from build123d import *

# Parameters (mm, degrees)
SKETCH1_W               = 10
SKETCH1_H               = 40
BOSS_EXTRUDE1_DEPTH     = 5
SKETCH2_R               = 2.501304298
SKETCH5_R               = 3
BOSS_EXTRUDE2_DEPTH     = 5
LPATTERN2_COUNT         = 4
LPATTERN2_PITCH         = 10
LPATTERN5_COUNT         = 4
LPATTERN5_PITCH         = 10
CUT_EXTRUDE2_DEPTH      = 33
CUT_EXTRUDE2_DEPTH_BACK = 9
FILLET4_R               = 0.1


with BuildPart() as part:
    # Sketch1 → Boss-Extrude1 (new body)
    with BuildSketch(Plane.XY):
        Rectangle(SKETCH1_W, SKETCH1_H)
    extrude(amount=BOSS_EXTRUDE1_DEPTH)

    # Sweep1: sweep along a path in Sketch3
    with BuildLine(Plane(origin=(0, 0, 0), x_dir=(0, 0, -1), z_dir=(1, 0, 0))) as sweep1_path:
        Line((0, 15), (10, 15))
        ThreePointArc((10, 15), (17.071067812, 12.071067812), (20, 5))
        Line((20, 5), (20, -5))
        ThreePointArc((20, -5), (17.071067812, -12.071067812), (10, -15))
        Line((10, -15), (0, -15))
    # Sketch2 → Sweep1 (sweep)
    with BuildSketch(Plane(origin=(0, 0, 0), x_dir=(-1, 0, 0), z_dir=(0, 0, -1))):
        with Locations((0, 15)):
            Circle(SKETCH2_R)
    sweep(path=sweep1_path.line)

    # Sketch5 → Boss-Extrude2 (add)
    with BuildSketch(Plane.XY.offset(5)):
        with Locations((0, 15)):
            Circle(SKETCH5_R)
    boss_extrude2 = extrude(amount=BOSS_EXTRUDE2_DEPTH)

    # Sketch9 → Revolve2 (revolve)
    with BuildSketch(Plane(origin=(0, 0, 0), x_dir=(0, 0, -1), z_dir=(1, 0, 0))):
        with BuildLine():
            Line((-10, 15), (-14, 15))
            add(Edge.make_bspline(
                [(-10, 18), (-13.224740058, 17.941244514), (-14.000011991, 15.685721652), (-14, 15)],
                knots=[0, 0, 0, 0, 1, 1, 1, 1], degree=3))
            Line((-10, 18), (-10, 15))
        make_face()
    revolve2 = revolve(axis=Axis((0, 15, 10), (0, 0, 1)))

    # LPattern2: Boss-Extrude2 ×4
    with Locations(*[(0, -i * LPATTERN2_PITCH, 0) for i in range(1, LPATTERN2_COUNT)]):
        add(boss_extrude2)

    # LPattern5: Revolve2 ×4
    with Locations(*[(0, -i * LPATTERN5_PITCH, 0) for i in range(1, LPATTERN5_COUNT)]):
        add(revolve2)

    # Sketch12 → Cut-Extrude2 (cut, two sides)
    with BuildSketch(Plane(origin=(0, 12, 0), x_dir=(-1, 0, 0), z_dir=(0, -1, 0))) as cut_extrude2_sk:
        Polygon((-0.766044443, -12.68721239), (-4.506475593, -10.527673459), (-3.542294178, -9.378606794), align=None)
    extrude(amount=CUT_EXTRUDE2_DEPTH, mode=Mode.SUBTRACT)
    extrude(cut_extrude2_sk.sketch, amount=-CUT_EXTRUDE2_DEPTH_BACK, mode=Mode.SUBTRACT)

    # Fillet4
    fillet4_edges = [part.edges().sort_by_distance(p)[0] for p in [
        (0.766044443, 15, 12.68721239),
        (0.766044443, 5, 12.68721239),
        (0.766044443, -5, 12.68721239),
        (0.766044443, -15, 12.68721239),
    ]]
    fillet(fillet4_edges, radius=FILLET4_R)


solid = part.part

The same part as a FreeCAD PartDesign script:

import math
import FreeCAD as App
import Part
import Sketcher
from FreeCAD import Vector
Q = App.Units.Quantity


def edges_at(feature, points):
    """Names of the edges that pass closest to the given points."""
    edges = feature.Shape.Edges
    near = lambda p: min(range(len(edges)), key=lambda i: edges[i].distToShape(Part.Vertex(*p))[0])
    return sorted({f"Edge{near(p) + 1}" for p in points})

doc = App.newDocument("Part")
body = doc.addObject("PartDesign::Body", "Body")

# Sketch on XY plane
sketch1 = body.newObject("Sketcher::SketchObject", "Sketch")
sketch1.AttachmentSupport = (doc.getObject("XY_Plane"), [""])
sketch1.MapMode = "FlatFace"
sketch1.addGeometry(Part.LineSegment(Vector(-5, 20, 0), Vector(-5, -20, 0)), False)
sketch1.addGeometry(Part.LineSegment(Vector(-5, -20, 0), Vector(5, -20, 0)), False)
sketch1.addGeometry(Part.LineSegment(Vector(5, -20, 0), Vector(5, 20, 0)), False)
sketch1.addGeometry(Part.LineSegment(Vector(5, 20, 0), Vector(-5, 20, 0)), False)
sketch1.addConstraint(Sketcher.Constraint("Coincident", 0, 2, 1, 1))
sketch1.addConstraint(Sketcher.Constraint("Coincident", 1, 2, 2, 1))
sketch1.addConstraint(Sketcher.Constraint("Coincident", 2, 2, 3, 1))
sketch1.addConstraint(Sketcher.Constraint("Coincident", 3, 2, 0, 1))
sketch1.addConstraint(Sketcher.Constraint("Vertical", 0))
sketch1.addConstraint(Sketcher.Constraint("Horizontal", 1))
sketch1.addConstraint(Sketcher.Constraint("Vertical", 2))
sketch1.addConstraint(Sketcher.Constraint("Horizontal", 3))
sketch1.addConstraint(Sketcher.Constraint("Symmetric", 0, 2, 2, 2, -1, 1))
sketch1.addConstraint(Sketcher.Constraint("DistanceX", 1, 1, 1, 2, 10.0))
sketch1.addConstraint(Sketcher.Constraint("DistanceY", 0, 2, 0, 1, 40.0))
pad1 = body.newObject("PartDesign::Pad", "Pad")
pad1.Profile = sketch1
pad1.Length = 5

# Sketch on XY plane
sketch2 = body.newObject("Sketcher::SketchObject", "Sketch001")
sketch2.AttachmentSupport = (doc.getObject("XY_Plane"), [""])
sketch2.MapMode = "FlatFace"
sketch2.addGeometry(Part.Circle(Vector(0, 15, 0), Vector(0, 0, 1), 2.5), False)
sketch2.addConstraint(Sketcher.Constraint("PointOnObject", 0, 3, -2))
sketch2.addConstraint(Sketcher.Constraint("DistanceY", -1, 1, 0, 3, 15.0))
sketch2.addConstraint(Sketcher.Constraint("Diameter", 0, 5.002609))

# Sketch on YZ plane
sketch3 = body.newObject("Sketcher::SketchObject", "Sketch002")
sketch3.AttachmentSupport = (doc.getObject("YZ_Plane"), [""])
sketch3.MapMode = "FlatFace"
sketch3.addGeometry(Part.LineSegment(Vector(15, 0, 0), Vector(15, -10, 0)), False)
sketch3.addGeometry(Part.ArcOfCircle(Part.Circle(Vector(5, -10, 0), Vector(0, 0, 1), 10), math.radians(-90), math.radians(0)), False)
sketch3.addGeometry(Part.LineSegment(Vector(5, -20, 0), Vector(-5, -20, 0)), False)
sketch3.addGeometry(Part.ArcOfCircle(Part.Circle(Vector(-5, -10, 0), Vector(0, 0, 1), 10), math.radians(180), math.radians(270)), False)
sketch3.addGeometry(Part.LineSegment(Vector(-15, -10, 0), Vector(-15, 0, 0)), False)
sketch3.addConstraint(Sketcher.Constraint("Tangent", 0, 2, 1, 2))
sketch3.addConstraint(Sketcher.Constraint("Tangent", 1, 1, 2, 1))
sketch3.addConstraint(Sketcher.Constraint("Tangent", 2, 2, 3, 2))
sketch3.addConstraint(Sketcher.Constraint("Tangent", 3, 1, 4, 1))
sketch3.addConstraint(Sketcher.Constraint("Vertical", 0))
sketch3.addConstraint(Sketcher.Constraint("Horizontal", 2))
sketch3.addConstraint(Sketcher.Constraint("Vertical", 4))
sketch3.addConstraint(Sketcher.Constraint("Equal", 1, 3))
sketch3.addConstraint(Sketcher.Constraint("Symmetric", 0, 1, 4, 2, -1, 1))
sketch3.addConstraint(Sketcher.Constraint("PointOnObject", 0, 1, -1))
sketch3.addConstraint(Sketcher.Constraint("Equal", 2, 0))
sketch3.addConstraint(Sketcher.Constraint("Radius", 1, 10.0))
sketch3.addConstraint(Sketcher.Constraint("DistanceX", 2, 2, 2, 1, 10.0))
doc.recompute()

additivepipe = body.newObject("PartDesign::AdditivePipe", "AdditivePipe")
additivepipe.Profile = sketch2
additivepipe.Spine = (sketch3, ["Edge1", "Edge2", "Edge3", "Edge4", "Edge5"])

# Sketch on XY plane
sketch4 = body.newObject("Sketcher::SketchObject", "Sketch003")
sketch4.AttachmentSupport = (doc.getObject("XY_Plane"), [""])
sketch4.MapMode = "FlatFace"
sketch4.AttachmentOffset = App.Placement(Vector(0, 0, 5), App.Rotation())
sketch4.addGeometry(Part.Circle(Vector(0, 15, 0), Vector(0, 0, 1), 3), False)
sketch4.addConstraint(Sketcher.Constraint("PointOnObject", 0, 3, -2))
sketch4.addConstraint(Sketcher.Constraint("Diameter", 0, 6.0))
sketch4.addConstraint(Sketcher.Constraint("DistanceY", -1, 1, 0, 3, 15.0))
pad2 = body.newObject("PartDesign::Pad", "Pad001")
pad2.Profile = sketch4
pad2.Length = 5

# Sketch on YZ plane
sketch5 = body.newObject("Sketcher::SketchObject", "Sketch004")
sketch5.AttachmentSupport = (doc.getObject("YZ_Plane"), [""])
sketch5.MapMode = "FlatFace"
sketch5.addGeometry(Part.LineSegment(Vector(15, 14, 0), Vector(15, 10, 0)), False)
sketch5.addGeometry(Part.LineSegment(Vector(15, 10, 0), Vector(18, 10, 0)), False)
sketch5.addGeometry(Part.BSplineCurve([Vector(18, 10, 0), Vector(17.941245, 13.22474, 0), Vector(15.685722, 14.000012, 0), Vector(15, 14, 0)], [4, 4], [0, 1], False, 3, [1, 1, 1, 1], False), False)
sketch5.addGeometry(Part.LineSegment(Vector(15, 10, 0), Vector(15, 14, 0)), True)  # axis
sketch5.addConstraint(Sketcher.Constraint("Block", 2))
sketch5.addConstraint(Sketcher.Constraint("Coincident", 0, 2, 1, 1))
sketch5.addConstraint(Sketcher.Constraint("Coincident", 1, 2, 2, 1))
sketch5.addConstraint(Sketcher.Constraint("Coincident", 2, 2, 0, 1))
sketch5.addConstraint(Sketcher.Constraint("Vertical", 0))
sketch5.addConstraint(Sketcher.Constraint("Horizontal", 1))
sketch5.addConstraint(Sketcher.Constraint("Vertical", 3))
sketch5.addConstraint(Sketcher.Constraint("Coincident", 3, 1, 0, 2))
sketch5.addConstraint(Sketcher.Constraint("Equal", 0, 3))
revolution = body.newObject("PartDesign::Revolution", "Revolution")
revolution.Profile = sketch5
revolution.ReferenceAxis = (sketch5, ["Axis0"])
revolution.Angle = 360
doc.recompute()

linearpattern = body.newObject("PartDesign::LinearPattern", "LinearPattern")
linearpattern.Originals = [pad2]
linearpattern.Direction = (doc.getObject("Y_Axis"), [""])
linearpattern.Mode = "offset"
linearpattern.Offset = 10
linearpattern.Occurrences = 4
linearpattern.Reversed = True
body.Tip = linearpattern
doc.recompute()

linearpattern2 = body.newObject("PartDesign::LinearPattern", "LinearPattern001")
linearpattern2.Originals = [revolution]
linearpattern2.Direction = (doc.getObject("Y_Axis"), [""])
linearpattern2.Mode = "offset"
linearpattern2.Offset = 10
linearpattern2.Occurrences = 4
linearpattern2.Reversed = True
body.Tip = linearpattern2

# Sketch on XZ plane
sketch6 = body.newObject("Sketcher::SketchObject", "Sketch005")
sketch6.AttachmentSupport = (doc.getObject("XZ_Plane"), [""])
sketch6.MapMode = "FlatFace"
sketch6.AttachmentOffset = App.Placement(Vector(0, 0, -12), App.Rotation())
sketch6.addGeometry(Part.LineSegment(Vector(4.5, 10.5, 0), Vector(0.8, 12.7, 0)), False)
sketch6.addGeometry(Part.LineSegment(Vector(0.8, 12.7, 0), Vector(3.5, 9.4, 0)), False)
sketch6.addGeometry(Part.LineSegment(Vector(3.5, 9.4, 0), Vector(4.5, 10.5, 0)), False)
sketch6.addConstraint(Sketcher.Constraint("Coincident", 0, 2, 1, 1))
sketch6.addConstraint(Sketcher.Constraint("Coincident", 1, 2, 2, 1))
sketch6.addConstraint(Sketcher.Constraint("Coincident", 2, 2, 0, 1))
sketch6.addConstraint(Sketcher.Constraint("Equal", 0, 1))
sketch6.addConstraint(Sketcher.Constraint("Angle", 0, Q("150 deg")))
sketch6.addConstraint(Sketcher.Constraint("Angle", 1, Q("-50 deg")))
sketch6.addConstraint(Sketcher.Constraint("Distance", 2, 1.5))
sketch6.addConstraint(Sketcher.Constraint("DistanceX", -1, 1, 0, 2, 0.766044))
sketch6.addConstraint(Sketcher.Constraint("DistanceY", -1, 1, 0, 2, 12.687212))
pocket1 = body.newObject("PartDesign::Pocket", "Pocket")
pocket1.Profile = sketch6
pocket1.Type = "ThroughAll"
pocket1.Midplane = True
doc.recompute()

fillet = body.newObject("PartDesign::Fillet", "Fillet")
fillet.Base = (pocket1, edges_at(pocket1, [
    (0.766, 15, 12.687),
    (0.766, 5, 12.687),
    (0.766, -5, 12.687),
    (0.766, -15, 12.687),
]))
fillet.Radius = 0.1

doc.recompute()
